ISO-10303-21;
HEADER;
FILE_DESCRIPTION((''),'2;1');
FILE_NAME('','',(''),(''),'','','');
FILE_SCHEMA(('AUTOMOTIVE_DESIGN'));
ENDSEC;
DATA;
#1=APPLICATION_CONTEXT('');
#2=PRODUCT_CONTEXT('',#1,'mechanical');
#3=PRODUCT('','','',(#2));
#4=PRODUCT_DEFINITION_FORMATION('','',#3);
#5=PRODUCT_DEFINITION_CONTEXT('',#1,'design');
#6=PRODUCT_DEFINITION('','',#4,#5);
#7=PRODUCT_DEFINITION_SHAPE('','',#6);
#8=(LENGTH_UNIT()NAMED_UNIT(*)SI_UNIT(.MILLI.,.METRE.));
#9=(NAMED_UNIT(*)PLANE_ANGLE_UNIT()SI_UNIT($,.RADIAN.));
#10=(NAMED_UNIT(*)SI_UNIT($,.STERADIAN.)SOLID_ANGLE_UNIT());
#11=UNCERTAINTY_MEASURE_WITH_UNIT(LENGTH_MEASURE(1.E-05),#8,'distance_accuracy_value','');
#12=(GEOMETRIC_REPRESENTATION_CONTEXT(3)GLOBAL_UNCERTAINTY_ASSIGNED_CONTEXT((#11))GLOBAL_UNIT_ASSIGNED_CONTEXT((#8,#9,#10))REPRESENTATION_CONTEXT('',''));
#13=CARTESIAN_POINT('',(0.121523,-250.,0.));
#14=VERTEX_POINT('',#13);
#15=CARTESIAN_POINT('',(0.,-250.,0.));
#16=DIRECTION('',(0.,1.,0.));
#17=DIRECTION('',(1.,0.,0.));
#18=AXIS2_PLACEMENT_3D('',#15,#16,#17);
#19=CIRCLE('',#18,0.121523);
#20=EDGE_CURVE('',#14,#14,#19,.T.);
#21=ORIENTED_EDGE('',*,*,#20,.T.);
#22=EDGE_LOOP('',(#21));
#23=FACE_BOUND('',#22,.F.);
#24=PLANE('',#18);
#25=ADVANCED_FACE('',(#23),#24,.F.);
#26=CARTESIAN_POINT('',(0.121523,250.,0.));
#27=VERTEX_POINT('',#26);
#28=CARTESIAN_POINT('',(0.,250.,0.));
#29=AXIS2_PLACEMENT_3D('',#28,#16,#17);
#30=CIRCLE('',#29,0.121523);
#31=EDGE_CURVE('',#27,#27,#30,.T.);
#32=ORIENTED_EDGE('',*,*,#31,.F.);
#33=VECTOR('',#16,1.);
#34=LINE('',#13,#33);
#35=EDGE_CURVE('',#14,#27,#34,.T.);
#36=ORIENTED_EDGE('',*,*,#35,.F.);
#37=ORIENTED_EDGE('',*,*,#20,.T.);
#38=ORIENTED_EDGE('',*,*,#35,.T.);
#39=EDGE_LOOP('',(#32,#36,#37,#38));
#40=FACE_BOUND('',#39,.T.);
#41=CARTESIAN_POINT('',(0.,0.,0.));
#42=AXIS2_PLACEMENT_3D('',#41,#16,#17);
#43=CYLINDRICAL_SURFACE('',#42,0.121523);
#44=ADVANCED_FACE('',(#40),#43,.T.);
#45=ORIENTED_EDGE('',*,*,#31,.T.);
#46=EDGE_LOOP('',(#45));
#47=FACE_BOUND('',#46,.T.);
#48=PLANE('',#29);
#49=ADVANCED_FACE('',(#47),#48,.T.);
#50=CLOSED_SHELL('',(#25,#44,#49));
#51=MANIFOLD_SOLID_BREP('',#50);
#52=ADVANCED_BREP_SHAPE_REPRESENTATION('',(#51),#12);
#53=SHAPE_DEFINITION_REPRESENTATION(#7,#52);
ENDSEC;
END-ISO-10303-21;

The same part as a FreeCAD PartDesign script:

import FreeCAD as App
import Part
import Sketcher

V = App.Vector

doc = App.newDocument("Part")
params = doc.addObject("Spreadsheet::Sheet", "Params")
for row, (alias, value) in enumerate([
    ("pad1_length", "500 mm"),
], start=1):
    params.set(f"A{row}", alias)
    params.set(f"B{row}", "=" + value)
    params.setAlias(f"B{row}", alias)

body = doc.addObject("PartDesign::Body", "Body")

# Sketch on XZ plane
sketch1 = body.newObject("Sketcher::SketchObject", "Sketch")
sketch1.AttachmentSupport = (doc.getObject("XZ_Plane"), [""])
sketch1.MapMode = "FlatFace"
sketch1.addGeometry(Part.Circle(V(0, 0, 0), V(0, 0, 1), 0.12), False)
sketch1.addConstraint(Sketcher.Constraint("Coincident", 0, 3, -1, 1))
sketch1.addConstraint(Sketcher.Constraint("Diameter", 0, 0.243045))
pad1 = body.newObject("PartDesign::Pad", "Pad")
pad1.Profile = sketch1
pad1.setExpression("Length", "Params.pad1_length")
pad1.Midplane = True

doc.recompute()
